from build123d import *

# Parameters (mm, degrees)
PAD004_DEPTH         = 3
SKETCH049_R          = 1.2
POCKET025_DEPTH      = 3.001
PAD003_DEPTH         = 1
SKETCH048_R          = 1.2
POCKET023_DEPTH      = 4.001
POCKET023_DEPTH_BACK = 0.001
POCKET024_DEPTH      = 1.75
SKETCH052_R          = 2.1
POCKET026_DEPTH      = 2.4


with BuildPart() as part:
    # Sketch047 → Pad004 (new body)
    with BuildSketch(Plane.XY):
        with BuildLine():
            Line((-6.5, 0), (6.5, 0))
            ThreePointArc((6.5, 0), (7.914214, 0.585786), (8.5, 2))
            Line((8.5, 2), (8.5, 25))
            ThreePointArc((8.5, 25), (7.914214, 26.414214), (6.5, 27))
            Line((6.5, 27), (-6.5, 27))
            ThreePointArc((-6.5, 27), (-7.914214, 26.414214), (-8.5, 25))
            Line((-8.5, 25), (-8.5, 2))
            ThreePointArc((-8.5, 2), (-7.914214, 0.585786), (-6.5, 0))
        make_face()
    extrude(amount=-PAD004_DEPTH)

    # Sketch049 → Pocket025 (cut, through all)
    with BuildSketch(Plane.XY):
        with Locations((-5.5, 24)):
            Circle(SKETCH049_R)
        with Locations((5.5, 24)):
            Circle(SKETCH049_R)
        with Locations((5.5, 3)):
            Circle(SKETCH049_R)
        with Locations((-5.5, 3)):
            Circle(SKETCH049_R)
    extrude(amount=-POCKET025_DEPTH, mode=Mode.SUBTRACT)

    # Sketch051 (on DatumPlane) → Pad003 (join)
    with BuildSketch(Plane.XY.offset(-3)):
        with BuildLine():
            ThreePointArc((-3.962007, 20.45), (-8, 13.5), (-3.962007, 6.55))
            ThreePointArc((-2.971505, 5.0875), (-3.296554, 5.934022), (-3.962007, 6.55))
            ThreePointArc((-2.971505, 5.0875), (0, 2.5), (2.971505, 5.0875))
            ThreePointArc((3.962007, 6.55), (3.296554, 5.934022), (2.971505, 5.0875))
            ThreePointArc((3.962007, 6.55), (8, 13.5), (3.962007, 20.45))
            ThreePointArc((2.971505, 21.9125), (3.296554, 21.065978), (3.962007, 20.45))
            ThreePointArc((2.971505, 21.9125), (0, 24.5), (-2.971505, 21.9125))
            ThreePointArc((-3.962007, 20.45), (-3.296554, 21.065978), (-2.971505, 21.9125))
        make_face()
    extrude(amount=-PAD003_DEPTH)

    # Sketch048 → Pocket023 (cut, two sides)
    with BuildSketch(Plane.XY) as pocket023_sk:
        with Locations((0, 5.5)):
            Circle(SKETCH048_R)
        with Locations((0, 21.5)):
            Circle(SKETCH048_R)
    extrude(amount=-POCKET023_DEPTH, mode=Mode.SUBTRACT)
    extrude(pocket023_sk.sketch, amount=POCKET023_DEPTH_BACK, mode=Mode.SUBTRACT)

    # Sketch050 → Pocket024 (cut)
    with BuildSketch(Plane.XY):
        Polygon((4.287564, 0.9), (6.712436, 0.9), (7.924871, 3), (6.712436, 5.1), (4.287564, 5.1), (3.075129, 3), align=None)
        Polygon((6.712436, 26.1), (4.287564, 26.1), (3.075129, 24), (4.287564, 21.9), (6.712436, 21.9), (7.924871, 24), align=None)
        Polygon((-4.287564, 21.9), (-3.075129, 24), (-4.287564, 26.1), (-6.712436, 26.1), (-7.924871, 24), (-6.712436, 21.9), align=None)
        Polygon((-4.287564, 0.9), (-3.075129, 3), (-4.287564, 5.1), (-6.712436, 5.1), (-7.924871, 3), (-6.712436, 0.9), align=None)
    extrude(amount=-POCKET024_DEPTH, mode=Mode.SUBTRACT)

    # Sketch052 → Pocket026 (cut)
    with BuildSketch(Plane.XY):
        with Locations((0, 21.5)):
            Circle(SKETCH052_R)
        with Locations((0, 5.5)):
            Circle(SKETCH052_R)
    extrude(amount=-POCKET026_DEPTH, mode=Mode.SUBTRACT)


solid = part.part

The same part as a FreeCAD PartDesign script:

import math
import FreeCAD as App
import Part
import Sketcher

V = App.Vector
Q = App.Units.Quantity


def add_polygon(sketch, points):
    """Adds a closed chain of lines whose ends are joined by coincident constraints."""
    first, n = sketch.GeometryCount, len(points)
    for a, b in zip(points, points[1:] + points[:1]):
        sketch.addGeometry(Part.LineSegment(App.Vector(*a, 0), App.Vector(*b, 0)), False)
    for i in range(n):
        sketch.addConstraint(Sketcher.Constraint("Coincident", first + i, 2, first + (i + 1) % n, 1))

doc = App.newDocument("Part")
body = doc.addObject("PartDesign::Body", "Body")

sketch1 = doc.addObject("Sketcher::SketchObject", "Sketch")
body.addObject(sketch1)
sketch1.AttachmentSupport = (doc.XY_Plane, [""])
sketch1.MapMode = "FlatFace"
sketch1.addGeometry(Part.LineSegment(V(-6.5, 0, 0), V(6.5, 0, 0)), False)
sketch1.addGeometry(Part.ArcOfCircle(Part.Circle(V(6.5, 2, 0), V(0, 0, 1), 2), math.radians(-90), math.radians(0)), False)
sketch1.addGeometry(Part.LineSegment(V(8.5, 2, 0), V(8.5, 25, 0)), False)
sketch1.addGeometry(Part.ArcOfCircle(Part.Circle(V(6.5, 25, 0), V(0, 0, 1), 2), math.radians(0), math.radians(90)), False)
sketch1.addGeometry(Part.LineSegment(V(6.5, 27, 0), V(-6.5, 27, 0)), False)
sketch1.addGeometry(Part.ArcOfCircle(Part.Circle(V(-6.5, 25, 0), V(0, 0, 1), 2), math.radians(90), math.radians(180)), False)
sketch1.addGeometry(Part.LineSegment(V(-8.5, 25, 0), V(-8.5, 2, 0)), False)
sketch1.addGeometry(Part.ArcOfCircle(Part.Circle(V(-6.5, 2, 0), V(0, 0, 1), 2), math.radians(180), math.radians(270)), False)
sketch1.addConstraint(Sketcher.Constraint("Tangent", 0, 2, 1, 1))
sketch1.addConstraint(Sketcher.Constraint("Tangent", 1, 2, 2, 1))
sketch1.addConstraint(Sketcher.Constraint("Tangent", 2, 2, 3, 1))
sketch1.addConstraint(Sketcher.Constraint("Tangent", 3, 2, 4, 1))
sketch1.addConstraint(Sketcher.Constraint("Tangent", 4, 2, 5, 1))
sketch1.addConstraint(Sketcher.Constraint("Tangent", 5, 2, 6, 1))
sketch1.addConstraint(Sketcher.Constraint("Tangent", 6, 2, 7, 1))
sketch1.addConstraint(Sketcher.Constraint("Tangent", 7, 2, 0, 1))
sketch1.addConstraint(Sketcher.Constraint("Horizontal", 0))
sketch1.addConstraint(Sketcher.Constraint("Vertical", 2))
sketch1.addConstraint(Sketcher.Constraint("Horizontal", 4))
sketch1.addConstraint(Sketcher.Constraint("Vertical", 6))
sketch1.addConstraint(Sketcher.Constraint("Equal", 1, 3))
sketch1.addConstraint(Sketcher.Constraint("Equal", 3, 5))
sketch1.addConstraint(Sketcher.Constraint("Equal", 5, 7))
sketch1.addConstraint(Sketcher.Constraint("Symmetric", 0, 2, 7, 2, -1, 1))
sketch1.addConstraint(Sketcher.Constraint("Radius", 1, 1.999999))
sketch1.addConstraint(Sketcher.Constraint("DistanceX", 0, 1, 0, 2, 13.0))
sketch1.addConstraint(Sketcher.Constraint("DistanceY", 2, 1, 2, 2, 23.0))
pad1 = doc.addObject("PartDesign::Pad", "Pad")
body.addObject(pad1)
pad1.Profile = sketch1
pad1.Length = 3
pad1.Reversed = True

sketch2 = doc.addObject("Sketcher::SketchObject", "Sketch001")
body.addObject(sketch2)
sketch2.AttachmentSupport = (doc.XY_Plane, [""])
sketch2.MapMode = "FlatFace"
sketch2.addGeometry(Part.Circle(V(-5.5, 24, 0), V(0, 0, 1), 1.2), False)
sketch2.addGeometry(Part.Circle(V(5.5, 24, 0), V(0, 0, 1), 1.2), False)
sketch2.addGeometry(Part.Circle(V(5.5, 3, 0), V(0, 0, 1), 1.2), False)
sketch2.addGeometry(Part.Circle(V(-5.5, 3, 0), V(0, 0, 1), 1.2), False)
sketch2.addConstraint(Sketcher.Constraint("Equal", 0, 1))
sketch2.addConstraint(Sketcher.Constraint("Equal", 1, 2))
sketch2.addConstraint(Sketcher.Constraint("Equal", 2, 3))
sketch2.addConstraint(Sketcher.Constraint("Symmetric", 0, 3, 1, 3, -2))
sketch2.addConstraint(Sketcher.Constraint("Symmetric", 2, 3, 3, 3, -2))
sketch2.addConstraint(Sketcher.Constraint("Vertical", 1, 3, 2, 3))
sketch2.addConstraint(Sketcher.Constraint("Diameter", 0, 2.4))
sketch2.addConstraint(Sketcher.Constraint("DistanceY", -1, 1, 0, 3, 24.0))
sketch2.addConstraint(Sketcher.Constraint("DistanceY", -1, 1, 2, 3, 3.0))
sketch2.addConstraint(Sketcher.Constraint("DistanceX", 0, 3, 1, 3, 11.0))
pocket1 = doc.addObject("PartDesign::Pocket", "Pocket")
body.addObject(pocket1)
pocket1.Profile = sketch2
pocket1.Type = "ThroughAll"

sketch3 = doc.addObject("Sketcher::SketchObject", "Sketch002")
body.addObject(sketch3)
sketch3.AttachmentSupport = (doc.XY_Plane, [""])
sketch3.MapMode = "FlatFace"
sketch3.AttachmentOffset = App.Placement(V(0, 0, -3), App.Rotation())
sketch3.addGeometry(Part.ArcOfCircle(Part.Circle(V(0, 13.5, 0), V(0, 0, 1), 8), math.radians(120), math.radians(240)), False)
sketch3.addGeometry(Part.ArcOfCircle(Part.Circle(V(-5, 4.8, 0), V(0, 0, 1), 2), math.radians(8), math.radians(60)), False)
sketch3.addGeometry(Part.ArcOfCircle(Part.Circle(V(0, 5.5, 0), V(0, 0, 1), 3), math.radians(-172), math.radians(-8)), False)
sketch3.addGeometry(Part.ArcOfCircle(Part.Circle(V(5, 4.8, 0), V(0, 0, 1), 2), math.radians(120), math.radians(172)), False)
sketch3.addGeometry(Part.ArcOfCircle(Part.Circle(V(0, 13.5, 0), V(0, 0, 1), 8), math.radians(-60), math.radians(60)), False)
sketch3.addGeometry(Part.ArcOfCircle(Part.Circle(V(5, 22.2, 0), V(0, 0, 1), 2), math.radians(-172), math.radians(-120)), False)
sketch3.addGeometry(Part.ArcOfCircle(Part.Circle(V(0, 21.5, 0), V(0, 0, 1), 3), math.radians(8), math.radians(172)), False)
sketch3.addGeometry(Part.ArcOfCircle(Part.Circle(V(-5, 22.2, 0), V(0, 0, 1), 2), math.radians(-60), math.radians(-8)), False)
sketch3.addConstraint(Sketcher.Constraint("Tangent", 0, 2, 1, 2))
sketch3.addConstraint(Sketcher.Constraint("Tangent", 1, 1, 2, 1))
sketch3.addConstraint(Sketcher.Constraint("Tangent", 2, 2, 3, 2))
sketch3.addConstraint(Sketcher.Constraint("Tangent", 3, 1, 4, 1))
sketch3.addConstraint(Sketcher.Constraint("Tangent", 4, 2, 5, 2))
sketch3.addConstraint(Sketcher.Constraint("Tangent", 5, 1, 6, 1))
sketch3.addConstraint(Sketcher.Constraint("Tangent", 6, 2, 7, 2))
sketch3.addConstraint(Sketcher.Constraint("Tangent", 7, 1, 0, 1))
sketch3.addConstraint(Sketcher.Constraint("Coincident", 4, 3, 0, 3))
sketch3.addConstraint(Sketcher.Constraint("Equal", 1, 3))
sketch3.addConstraint(Sketcher.Constraint("Equal", 0, 4))
sketch3.addConstraint(Sketcher.Constraint("Equal", 3, 5))
sketch3.addConstraint(Sketcher.Constraint("Equal", 2, 6))
sketch3.addConstraint(Sketcher.Constraint("Equal", 5, 7))
sketch3.addConstraint(Sketcher.Constraint("Symmetric", 1, 3, 3, 3, -2))
sketch3.addConstraint(Sketcher.Constraint("PointOnObject", 6, 3, -2))
sketch3.addConstraint(Sketcher.Constraint("Vertical", 3, 3, 5, 3))
sketch3.addConstraint(Sketcher.Constraint("Radius", 0, 8.0))
sketch3.addConstraint(Sketcher.Constraint("Radius", 2, 3.0))
sketch3.addConstraint(Sketcher.Constraint("DistanceY", 2, 3, 0, 3, 8.0))
sketch3.addConstraint(Sketcher.Constraint("DistanceY", -1, 1, 0, 3, 13.5))
sketch3.addConstraint(Sketcher.Constraint("DistanceY", -1, 1, 0, 2, 6.55))
pad2 = doc.addObject("PartDesign::Pad", "Pad001")
body.addObject(pad2)
pad2.Profile = sketch3
pad2.Length = 1
pad2.Reversed = True

sketch4 = doc.addObject("Sketcher::SketchObject", "Sketch003")
body.addObject(sketch4)
sketch4.AttachmentSupport = (doc.XY_Plane, [""])
sketch4.MapMode = "FlatFace"
sketch4.addGeometry(Part.Circle(V(0, 5.5, 0), V(0, 0, 1), 1.2), False)
sketch4.addGeometry(Part.Circle(V(0, 21.5, 0), V(0, 0, 1), 1.2), False)
sketch4.addConstraint(Sketcher.Constraint("Equal", 0, 1))
sketch4.addConstraint(Sketcher.Constraint("PointOnObject", 0, 3, -2))
sketch4.addConstraint(Sketcher.Constraint("PointOnObject", 1, 3, -2))
sketch4.addConstraint(Sketcher.Constraint("Diameter", 0, 2.4))
sketch4.addConstraint(Sketcher.Constraint("DistanceY", 0, 3, 1, 3, 16.0))
sketch4.addConstraint(Sketcher.Constraint("DistanceY", -1, 1, 0, 3, 5.5))
pocket2 = doc.addObject("PartDesign::Pocket", "Pocket001")
body.addObject(pocket2)
pocket2.Profile = sketch4
pocket2.Type = "ThroughAll"
pocket2.Midplane = True

sketch5 = doc.addObject("Sketcher::SketchObject", "Sketch004")
body.addObject(sketch5)
sketch5.AttachmentSupport = (doc.XY_Plane, [""])
sketch5.MapMode = "FlatFace"
add_polygon(sketch5, [(4.3, 0.9), (6.7, 0.9), (7.9, 3), (6.7, 5.1), (4.3, 5.1), (3.1, 3)])
add_polygon(sketch5, [(6.7, 26.1), (4.3, 26.1), (3.1, 24), (4.3, 21.9), (6.7, 21.9), (7.9, 24)])
add_polygon(sketch5, [(-4.3, 21.9), (-3.1, 24), (-4.3, 26.1), (-6.7, 26.1), (-7.9, 24), (-6.7, 21.9)])
add_polygon(sketch5, [(-4.3, 0.9), (-3.1, 3), (-4.3, 5.1), (-6.7, 5.1), (-7.9, 3), (-6.7, 0.9)])
sketch5.addConstraint(Sketcher.Constraint("Horizontal", 0))
sketch5.addConstraint(Sketcher.Constraint("Horizontal", 3))
sketch5.addConstraint(Sketcher.Constraint("Horizontal", 6))
sketch5.addConstraint(Sketcher.Constraint("Horizontal", 9))
sketch5.addConstraint(Sketcher.Constraint("Horizontal", 14))
sketch5.addConstraint(Sketcher.Constraint("Horizontal", 17))
sketch5.addConstraint(Sketcher.Constraint("Horizontal", 20))
sketch5.addConstraint(Sketcher.Constraint("Horizontal", 23))
sketch5.addConstraint(Sketcher.Constraint("Symmetric", 7, 2, 12, 2, -2))
sketch5.addConstraint(Sketcher.Constraint("Symmetric", 6, 2, 13, 2, -2))
sketch5.addConstraint(Sketcher.Constraint("Symmetric", 10, 2, 15, 2, -2))
sketch5.addConstraint(Sketcher.Constraint("Symmetric", 9, 2, 16, 2, -2))
sketch5.addConstraint(Sketcher.Constraint("Symmetric", 4, 2, 18, 2, -2))
sketch5.addConstraint(Sketcher.Constraint("Symmetric", 3, 2, 19, 2, -2))
sketch5.addConstraint(Sketcher.Constraint("Symmetric", 1, 2, 21, 2, -2))
sketch5.addConstraint(Sketcher.Constraint("Symmetric", 0, 2, 22, 2, -2))
sketch5.addConstraint(Sketcher.Constraint("Parallel", 1, 4))
sketch5.addConstraint(Sketcher.Constraint("Parallel", 2, 5))
sketch5.addConstraint(Sketcher.Constraint("Parallel", 4, 7))
sketch5.addConstraint(Sketcher.Constraint("Parallel", 5, 8))
sketch5.addConstraint(Sketcher.Constraint("Parallel", 7, 10))
sketch5.addConstraint(Sketcher.Constraint("Parallel", 8, 11))
sketch5.addConstraint(Sketcher.Constraint("Parallel", 10, 12))
sketch5.addConstraint(Sketcher.Constraint("Parallel", 11, 13))
sketch5.addConstraint(Sketcher.Constraint("Parallel", 12, 15))
sketch5.addConstraint(Sketcher.Constraint("Parallel", 15, 18))
sketch5.addConstraint(Sketcher.Constraint("Parallel", 18, 21))
sketch5.addConstraint(Sketcher.Constraint("Horizontal", 1, 2, 4, 2))
sketch5.addConstraint(Sketcher.Constraint("Horizontal", 7, 2, 10, 2))
sketch5.addConstraint(Sketcher.Constraint("Vertical", 0, 2, 2, 2))
sketch5.addConstraint(Sketcher.Constraint("Vertical", 5, 2, 6, 2))
sketch5.addConstraint(Sketcher.Constraint("Vertical", 4, 2, 7, 2))
sketch5.addConstraint(Sketcher.Constraint("Vertical", 6, 2, 8, 2))
sketch5.addConstraint(Sketcher.Constraint("Vertical", 2, 2, 9, 2))
sketch5.addConstraint(Sketcher.Constraint("Angle", 1, Q("60.000012 deg")))
sketch5.addConstraint(Sketcher.Constraint("DistanceY", -1, 1, 1, 2, 3.0))
sketch5.addConstraint(Sketcher.Constraint("DistanceY", -1, 1, 7, 2, 24.0))
sketch5.addConstraint(Sketcher.Constraint("DistanceX", 13, 2, 11, 2, 11.0))
sketch5.addConstraint(Sketcher.Constraint("DistanceY", -1, 1, 0, 2, 0.9))
sketch5.addConstraint(Sketcher.Constraint("DistanceX", 0, 1, 0, 2, 2.424872))
pocket3 = doc.addObject("PartDesign::Pocket", "Pocket002")
body.addObject(pocket3)
pocket3.Profile = sketch5
pocket3.Length = 1.75

sketch6 = doc.addObject("Sketcher::SketchObject", "Sketch005")
body.addObject(sketch6)
sketch6.AttachmentSupport = (doc.XY_Plane, [""])
sketch6.MapMode = "FlatFace"
sketch6.addGeometry(Part.Circle(V(0, 21.5, 0), V(0, 0, 1), 2.1), False)
sketch6.addGeometry(Part.Circle(V(0, 5.5, 0), V(0, 0, 1), 2.1), False)
sketch6.addConstraint(Sketcher.Constraint("Equal", 0, 1))
sketch6.addConstraint(Sketcher.Constraint("PointOnObject", 0, 3, -2))
sketch6.addConstraint(Sketcher.Constraint("PointOnObject", 1, 3, -2))
sketch6.addConstraint(Sketcher.Constraint("Diameter", 0, 4.2))
sketch6.addConstraint(Sketcher.Constraint("DistanceY", 1, 3, 0, 3, 16.0))
sketch6.addConstraint(Sketcher.Constraint("DistanceY", -1, 1, 0, 3, 21.5))
pocket4 = doc.addObject("PartDesign::Pocket", "Pocket003")
body.addObject(pocket4)
pocket4.Profile = sketch6
pocket4.Length = 2.4

doc.recompute()
